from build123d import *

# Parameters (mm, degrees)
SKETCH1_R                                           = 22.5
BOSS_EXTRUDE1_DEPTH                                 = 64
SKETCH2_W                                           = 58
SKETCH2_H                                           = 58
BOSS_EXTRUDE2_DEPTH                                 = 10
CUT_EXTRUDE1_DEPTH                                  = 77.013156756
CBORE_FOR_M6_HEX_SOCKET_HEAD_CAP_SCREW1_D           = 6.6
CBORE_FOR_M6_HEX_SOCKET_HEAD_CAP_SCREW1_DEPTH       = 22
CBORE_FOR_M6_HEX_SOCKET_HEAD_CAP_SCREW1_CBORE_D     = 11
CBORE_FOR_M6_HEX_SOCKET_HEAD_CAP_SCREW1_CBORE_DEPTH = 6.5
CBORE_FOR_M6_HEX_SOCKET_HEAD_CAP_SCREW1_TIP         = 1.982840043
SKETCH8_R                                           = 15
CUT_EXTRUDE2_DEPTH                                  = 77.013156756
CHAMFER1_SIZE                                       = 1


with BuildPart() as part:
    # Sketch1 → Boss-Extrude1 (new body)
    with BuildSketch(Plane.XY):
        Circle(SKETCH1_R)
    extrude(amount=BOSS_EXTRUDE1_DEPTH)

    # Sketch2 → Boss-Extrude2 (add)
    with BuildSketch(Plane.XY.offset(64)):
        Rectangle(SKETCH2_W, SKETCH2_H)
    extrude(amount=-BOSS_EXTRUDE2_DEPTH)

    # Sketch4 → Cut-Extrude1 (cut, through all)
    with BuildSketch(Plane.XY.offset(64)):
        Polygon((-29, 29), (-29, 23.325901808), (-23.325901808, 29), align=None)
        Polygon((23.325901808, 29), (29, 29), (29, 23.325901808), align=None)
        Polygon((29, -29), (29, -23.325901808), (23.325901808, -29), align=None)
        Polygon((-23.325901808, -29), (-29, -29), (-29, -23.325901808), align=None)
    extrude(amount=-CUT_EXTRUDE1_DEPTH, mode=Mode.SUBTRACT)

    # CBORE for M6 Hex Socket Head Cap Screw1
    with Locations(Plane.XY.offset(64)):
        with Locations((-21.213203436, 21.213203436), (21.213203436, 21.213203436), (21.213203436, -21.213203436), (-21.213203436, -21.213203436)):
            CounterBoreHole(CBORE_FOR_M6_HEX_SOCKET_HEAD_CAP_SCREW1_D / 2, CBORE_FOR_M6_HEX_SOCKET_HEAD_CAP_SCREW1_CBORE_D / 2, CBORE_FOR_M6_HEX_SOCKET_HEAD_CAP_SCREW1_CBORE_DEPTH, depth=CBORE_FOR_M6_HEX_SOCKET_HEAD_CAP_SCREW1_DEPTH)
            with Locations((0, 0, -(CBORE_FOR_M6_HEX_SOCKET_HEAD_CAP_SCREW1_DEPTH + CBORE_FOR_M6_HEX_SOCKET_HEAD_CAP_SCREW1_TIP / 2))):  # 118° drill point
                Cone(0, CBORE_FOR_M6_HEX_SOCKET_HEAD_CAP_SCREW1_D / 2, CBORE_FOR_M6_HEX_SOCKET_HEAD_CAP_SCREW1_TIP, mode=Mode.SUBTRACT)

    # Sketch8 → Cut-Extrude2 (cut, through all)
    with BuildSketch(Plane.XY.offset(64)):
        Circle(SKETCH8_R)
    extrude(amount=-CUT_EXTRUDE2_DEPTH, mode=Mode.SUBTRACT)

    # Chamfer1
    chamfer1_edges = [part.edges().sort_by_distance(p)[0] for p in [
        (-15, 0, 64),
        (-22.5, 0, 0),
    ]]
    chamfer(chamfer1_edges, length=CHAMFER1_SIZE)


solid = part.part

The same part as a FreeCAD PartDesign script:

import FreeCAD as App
import Part
import Sketcher
Q = App.Units.Quantity


def edges_at(feature, points):
    """Names of the edges that pass closest to the given points."""
    edges = feature.Shape.Edges
    near = lambda p: min(range(len(edges)), key=lambda i: edges[i].distToShape(Part.Vertex(*p))[0])
    return sorted({f"Edge{near(p) + 1}" for p in points})

doc = App.newDocument("Part")
params = doc.addObject("Spreadsheet::Sheet", "Params")
for row, (alias, value) in enumerate([
    ("sketch1_diameter", "45 mm"),
    ("pad1_length", "64 mm"),
    ("sketch2_width", "58 mm"),
    ("pad2_length", "10 mm"),
    ("sketch4_diameter", "6.6 mm"),
    ("hole_diameter", "6.6 mm"),
    ("hole_depth", "22 mm"),
    ("hole_cbore_diameter", "11 mm"),
    ("hole_cbore_depth", "6.5 mm"),
    ("sketch5_diameter", "30 mm"),
    ("chamfer_size", "1 mm"),
], start=1):
    params.set(f"A{row}", alias)
    params.set(f"B{row}", "=" + value)
    params.setAlias(f"B{row}", alias)

body = doc.addObject("PartDesign::Body", "Body")

sketch1 = body.newObject("Sketcher::SketchObject", "Sketch")
sketch1.AttachmentSupport = (doc.getObject("XY_Plane"), [""])
sketch1.MapMode = "FlatFace"
sketch1.addGeometry(Part.Circle(App.Vector(0, 0, 0), App.Vector(0, 0, 1), 22), False)
sketch1.addConstraint(Sketcher.Constraint("Coincident", 0, 3, -1, 1))
sketch1.addConstraint(Sketcher.Constraint("Diameter", 0, Q("45 mm")))
sketch1.setExpression("Constraints[1]", "Params.sketch1_diameter")
pad1 = body.newObject("PartDesign::Pad", "Pad")
pad1.Profile = sketch1
pad1.setExpression("Length", "Params.pad1_length")

sketch2 = body.newObject("Sketcher::SketchObject", "Sketch001")
sketch2.AttachmentSupport = (doc.getObject("XY_Plane"), [""])
sketch2.MapMode = "FlatFace"
sketch2.AttachmentOffset = App.Placement(App.Vector(0, 0, 64), App.Rotation())
sketch2.addGeometry(Part.LineSegment(App.Vector(-29, 29, 0), App.Vector(-29, -29, 0)), False)
sketch2.addGeometry(Part.LineSegment(App.Vector(-29, -29, 0), App.Vector(29, -29, 0)), False)
sketch2.addGeometry(Part.LineSegment(App.Vector(29, -29, 0), App.Vector(29, 29, 0)), False)
sketch2.addGeometry(Part.LineSegment(App.Vector(29, 29, 0), App.Vector(-29, 29, 0)), False)
sketch2.addConstraint(Sketcher.Constraint("Coincident", 0, 2, 1, 1))
sketch2.addConstraint(Sketcher.Constraint("Coincident", 1, 2, 2, 1))
sketch2.addConstraint(Sketcher.Constraint("Coincident", 2, 2, 3, 1))
sketch2.addConstraint(Sketcher.Constraint("Coincident", 3, 2, 0, 1))
sketch2.addConstraint(Sketcher.Constraint("Vertical", 0))
sketch2.addConstraint(Sketcher.Constraint("Horizontal", 1))
sketch2.addConstraint(Sketcher.Constraint("Vertical", 2))
sketch2.addConstraint(Sketcher.Constraint("Horizontal", 3))
sketch2.addConstraint(Sketcher.Constraint("Symmetric", 0, 2, 2, 2, -1, 1))
sketch2.addConstraint(Sketcher.Constraint("Equal", 3, 0))
sketch2.addConstraint(Sketcher.Constraint("DistanceX", 1, 1, 1, 2, Q("58 mm")))
sketch2.setExpression("Constraints[10]", "Params.sketch2_width")
pad2 = body.newObject("PartDesign::Pad", "Pad001")
pad2.Profile = sketch2
pad2.setExpression("Length", "Params.pad2_length")
pad2.Reversed = True

sketch3 = body.newObject("Sketcher::SketchObject", "Sketch002")
sketch3.AttachmentSupport = (doc.getObject("XY_Plane"), [""])
sketch3.MapMode = "FlatFace"
sketch3.AttachmentOffset = App.Placement(App.Vector(0, 0, 64), App.Rotation())
sketch3.addGeometry(Part.LineSegment(App.Vector(-29, 29, 0), App.Vector(-29, 23, 0)), False)
sketch3.addGeometry(Part.LineSegment(App.Vector(-29, 23, 0), App.Vector(-23, 29, 0)), False)
sketch3.addGeometry(Part.LineSegment(App.Vector(-23, 29, 0), App.Vector(-29, 29, 0)), False)
sketch3.addGeometry(Part.LineSegment(App.Vector(29, 29, 0), App.Vector(23, 29, 0)), False)
sketch3.addGeometry(Part.LineSegment(App.Vector(23, 29, 0), App.Vector(29, 23, 0)), False)
sketch3.addGeometry(Part.LineSegment(App.Vector(29, 23, 0), App.Vector(29, 29, 0)), False)
sketch3.addGeometry(Part.LineSegment(App.Vector(29, -29, 0), App.Vector(29, -23, 0)), False)
sketch3.addGeometry(Part.LineSegment(App.Vector(29, -23, 0), App.Vector(23, -29, 0)), False)
sketch3.addGeometry(Part.LineSegment(App.Vector(23, -29, 0), App.Vector(29, -29, 0)), False)
sketch3.addGeometry(Part.LineSegment(App.Vector(-29, -29, 0), App.Vector(-23, -29, 0)), False)
sketch3.addGeometry(Part.LineSegment(App.Vector(-23, -29, 0), App.Vector(-29, -23, 0)), False)
sketch3.addGeometry(Part.LineSegment(App.Vector(-29, -23, 0), App.Vector(-29, -29, 0)), False)
sketch3.addConstraint(Sketcher.Constraint("Coincident", 0, 2, 1, 1))
sketch3.addConstraint(Sketcher.Constraint("Coincident", 1, 2, 2, 1))
sketch3.addConstraint(Sketcher.Constraint("Coincident", 2, 2, 0, 1))
sketch3.addConstraint(Sketcher.Constraint("Coincident", 3, 2, 4, 1))
sketch3.addConstraint(Sketcher.Constraint("Coincident", 4, 2, 5, 1))
sketch3.addConstraint(Sketcher.Constraint("Coincident", 5, 2, 3, 1))
sketch3.addConstraint(Sketcher.Constraint("Coincident", 6, 2, 7, 1))
sketch3.addConstraint(Sketcher.Constraint("Coincident", 7, 2, 8, 1))
sketch3.addConstraint(Sketcher.Constraint("Coincident", 8, 2, 6, 1))
sketch3.addConstraint(Sketcher.Constraint("Coincident", 9, 2, 10, 1))
sketch3.addConstraint(Sketcher.Constraint("Coincident", 10, 2, 11, 1))
sketch3.addConstraint(Sketcher.Constraint("Coincident", 11, 2, 9, 1))
sketch3.addConstraint(Sketcher.Constraint("Vertical", 0))
sketch3.addConstraint(Sketcher.Constraint("Horizontal", 2))
sketch3.addConstraint(Sketcher.Constraint("Horizontal", 3))
sketch3.addConstraint(Sketcher.Constraint("Vertical", 5))
sketch3.addConstraint(Sketcher.Constraint("Vertical", 6))
sketch3.addConstraint(Sketcher.Constraint("Horizontal", 8))
sketch3.addConstraint(Sketcher.Constraint("Horizontal", 9))
sketch3.addConstraint(Sketcher.Constraint("Vertical", 11))
sketch3.addConstraint(Sketcher.Constraint("Symmetric", 0, 2, 6, 2, -1, 1))
sketch3.addConstraint(Sketcher.Constraint("Symmetric", 1, 2, 7, 2, -1, 1))
sketch3.addConstraint(Sketcher.Constraint("Symmetric", 3, 2, 9, 2, -1, 1))
sketch3.addConstraint(Sketcher.Constraint("Symmetric", 4, 2, 10, 2, -1, 1))
sketch3.addConstraint(Sketcher.Constraint("Symmetric", 1, 2, 3, 2, -2))
sketch3.addConstraint(Sketcher.Constraint("Symmetric", 0, 2, 4, 2, -2))
sketch3.addConstraint(Sketcher.Constraint("Perpendicular", 1, 4))
sketch3.addConstraint(Sketcher.Constraint("DistanceX", 0, 2, -1, 1, Q("29 mm")))
sketch3.addConstraint(Sketcher.Constraint("DistanceY", -1, 1, 1, 2, Q("29 mm")))
sketch3.addConstraint(Sketcher.Constraint("DistanceX", 2, 2, 2, 1, Q("5.674098 mm")))
pocket1 = body.newObject("PartDesign::Pocket", "Pocket")
pocket1.Profile = sketch3
pocket1.Type = "ThroughAll"

sketch4 = body.newObject("Sketcher::SketchObject", "Sketch003")
sketch4.AttachmentSupport = (doc.getObject("XY_Plane"), [""])
sketch4.MapMode = "FlatFace"
sketch4.AttachmentOffset = App.Placement(App.Vector(0, 0, 64), App.Rotation())
sketch4.addGeometry(Part.Circle(App.Vector(-21.2, 21.2, 0), App.Vector(0, 0, 1), 3.3), False)
sketch4.addGeometry(Part.Circle(App.Vector(21.2, 21.2, 0), App.Vector(0, 0, 1), 3.3), False)
sketch4.addGeometry(Part.Circle(App.Vector(21.2, -21.2, 0), App.Vector(0, 0, 1), 3.3), False)
sketch4.addGeometry(Part.Circle(App.Vector(-21.2, -21.2, 0), App.Vector(0, 0, 1), 3.3), False)
sketch4.addConstraint(Sketcher.Constraint("Equal", 0, 1))
sketch4.addConstraint(Sketcher.Constraint("Equal", 1, 2))
sketch4.addConstraint(Sketcher.Constraint("Equal", 2, 3))
sketch4.addConstraint(Sketcher.Constraint("Symmetric", 0, 3, 2, 3, -1, 1))
sketch4.addConstraint(Sketcher.Constraint("Symmetric", 1, 3, 3, 3, -1, 1))
sketch4.addConstraint(Sketcher.Constraint("Symmetric", 0, 3, 1, 3, -2))
sketch4.addConstraint(Sketcher.Constraint("Diameter", 0, Q("6.6 mm")))
sketch4.addConstraint(Sketcher.Constraint("DistanceX", 0, 3, -1, 1, Q("21.213203 mm")))
sketch4.addConstraint(Sketcher.Constraint("DistanceY", -1, 1, 0, 3, Q("21.213203 mm")))
sketch4.setExpression("Constraints[6]", "Params.sketch4_diameter")
doc.recompute()
hole = body.newObject("PartDesign::Hole", "Hole")
hole.Profile = sketch4
hole.ThreadType = "None"
hole.setExpression("Diameter", "Params.hole_diameter")
hole.DepthType = "Dimension"
hole.setExpression("Depth", "Params.hole_depth")
hole.DrillPoint = "Angled"
hole.DrillPointAngle = 118
hole.HoleCutType = "Counterbore"
hole.setExpression("HoleCutDiameter", "Params.hole_cbore_diameter")
hole.setExpression("HoleCutDepth", "Params.hole_cbore_depth")

sketch5 = body.newObject("Sketcher::SketchObject", "Sketch004")
sketch5.AttachmentSupport = (doc.getObject("XY_Plane"), [""])
sketch5.MapMode = "FlatFace"
sketch5.AttachmentOffset = App.Placement(App.Vector(0, 0, 64), App.Rotation())
sketch5.addGeometry(Part.Circle(App.Vector(0, 0, 0), App.Vector(0, 0, 1), 15), False)
sketch5.addConstraint(Sketcher.Constraint("Coincident", 0, 3, -1, 1))
sketch5.addConstraint(Sketcher.Constraint("Diameter", 0, Q("30 mm")))
sketch5.setExpression("Constraints[1]", "Params.sketch5_diameter")
pocket2 = body.newObject("PartDesign::Pocket", "Pocket001")
pocket2.Profile = sketch5
pocket2.Type = "ThroughAll"
doc.recompute()

chamfer = body.newObject("PartDesign::Chamfer", "Chamfer")
chamfer.Base = (pocket2, edges_at(pocket2, [(-15, 0, 64), (-22.5, 0, 0)]))
chamfer.setExpression("Size", "Params.chamfer_size")

doc.recompute()
